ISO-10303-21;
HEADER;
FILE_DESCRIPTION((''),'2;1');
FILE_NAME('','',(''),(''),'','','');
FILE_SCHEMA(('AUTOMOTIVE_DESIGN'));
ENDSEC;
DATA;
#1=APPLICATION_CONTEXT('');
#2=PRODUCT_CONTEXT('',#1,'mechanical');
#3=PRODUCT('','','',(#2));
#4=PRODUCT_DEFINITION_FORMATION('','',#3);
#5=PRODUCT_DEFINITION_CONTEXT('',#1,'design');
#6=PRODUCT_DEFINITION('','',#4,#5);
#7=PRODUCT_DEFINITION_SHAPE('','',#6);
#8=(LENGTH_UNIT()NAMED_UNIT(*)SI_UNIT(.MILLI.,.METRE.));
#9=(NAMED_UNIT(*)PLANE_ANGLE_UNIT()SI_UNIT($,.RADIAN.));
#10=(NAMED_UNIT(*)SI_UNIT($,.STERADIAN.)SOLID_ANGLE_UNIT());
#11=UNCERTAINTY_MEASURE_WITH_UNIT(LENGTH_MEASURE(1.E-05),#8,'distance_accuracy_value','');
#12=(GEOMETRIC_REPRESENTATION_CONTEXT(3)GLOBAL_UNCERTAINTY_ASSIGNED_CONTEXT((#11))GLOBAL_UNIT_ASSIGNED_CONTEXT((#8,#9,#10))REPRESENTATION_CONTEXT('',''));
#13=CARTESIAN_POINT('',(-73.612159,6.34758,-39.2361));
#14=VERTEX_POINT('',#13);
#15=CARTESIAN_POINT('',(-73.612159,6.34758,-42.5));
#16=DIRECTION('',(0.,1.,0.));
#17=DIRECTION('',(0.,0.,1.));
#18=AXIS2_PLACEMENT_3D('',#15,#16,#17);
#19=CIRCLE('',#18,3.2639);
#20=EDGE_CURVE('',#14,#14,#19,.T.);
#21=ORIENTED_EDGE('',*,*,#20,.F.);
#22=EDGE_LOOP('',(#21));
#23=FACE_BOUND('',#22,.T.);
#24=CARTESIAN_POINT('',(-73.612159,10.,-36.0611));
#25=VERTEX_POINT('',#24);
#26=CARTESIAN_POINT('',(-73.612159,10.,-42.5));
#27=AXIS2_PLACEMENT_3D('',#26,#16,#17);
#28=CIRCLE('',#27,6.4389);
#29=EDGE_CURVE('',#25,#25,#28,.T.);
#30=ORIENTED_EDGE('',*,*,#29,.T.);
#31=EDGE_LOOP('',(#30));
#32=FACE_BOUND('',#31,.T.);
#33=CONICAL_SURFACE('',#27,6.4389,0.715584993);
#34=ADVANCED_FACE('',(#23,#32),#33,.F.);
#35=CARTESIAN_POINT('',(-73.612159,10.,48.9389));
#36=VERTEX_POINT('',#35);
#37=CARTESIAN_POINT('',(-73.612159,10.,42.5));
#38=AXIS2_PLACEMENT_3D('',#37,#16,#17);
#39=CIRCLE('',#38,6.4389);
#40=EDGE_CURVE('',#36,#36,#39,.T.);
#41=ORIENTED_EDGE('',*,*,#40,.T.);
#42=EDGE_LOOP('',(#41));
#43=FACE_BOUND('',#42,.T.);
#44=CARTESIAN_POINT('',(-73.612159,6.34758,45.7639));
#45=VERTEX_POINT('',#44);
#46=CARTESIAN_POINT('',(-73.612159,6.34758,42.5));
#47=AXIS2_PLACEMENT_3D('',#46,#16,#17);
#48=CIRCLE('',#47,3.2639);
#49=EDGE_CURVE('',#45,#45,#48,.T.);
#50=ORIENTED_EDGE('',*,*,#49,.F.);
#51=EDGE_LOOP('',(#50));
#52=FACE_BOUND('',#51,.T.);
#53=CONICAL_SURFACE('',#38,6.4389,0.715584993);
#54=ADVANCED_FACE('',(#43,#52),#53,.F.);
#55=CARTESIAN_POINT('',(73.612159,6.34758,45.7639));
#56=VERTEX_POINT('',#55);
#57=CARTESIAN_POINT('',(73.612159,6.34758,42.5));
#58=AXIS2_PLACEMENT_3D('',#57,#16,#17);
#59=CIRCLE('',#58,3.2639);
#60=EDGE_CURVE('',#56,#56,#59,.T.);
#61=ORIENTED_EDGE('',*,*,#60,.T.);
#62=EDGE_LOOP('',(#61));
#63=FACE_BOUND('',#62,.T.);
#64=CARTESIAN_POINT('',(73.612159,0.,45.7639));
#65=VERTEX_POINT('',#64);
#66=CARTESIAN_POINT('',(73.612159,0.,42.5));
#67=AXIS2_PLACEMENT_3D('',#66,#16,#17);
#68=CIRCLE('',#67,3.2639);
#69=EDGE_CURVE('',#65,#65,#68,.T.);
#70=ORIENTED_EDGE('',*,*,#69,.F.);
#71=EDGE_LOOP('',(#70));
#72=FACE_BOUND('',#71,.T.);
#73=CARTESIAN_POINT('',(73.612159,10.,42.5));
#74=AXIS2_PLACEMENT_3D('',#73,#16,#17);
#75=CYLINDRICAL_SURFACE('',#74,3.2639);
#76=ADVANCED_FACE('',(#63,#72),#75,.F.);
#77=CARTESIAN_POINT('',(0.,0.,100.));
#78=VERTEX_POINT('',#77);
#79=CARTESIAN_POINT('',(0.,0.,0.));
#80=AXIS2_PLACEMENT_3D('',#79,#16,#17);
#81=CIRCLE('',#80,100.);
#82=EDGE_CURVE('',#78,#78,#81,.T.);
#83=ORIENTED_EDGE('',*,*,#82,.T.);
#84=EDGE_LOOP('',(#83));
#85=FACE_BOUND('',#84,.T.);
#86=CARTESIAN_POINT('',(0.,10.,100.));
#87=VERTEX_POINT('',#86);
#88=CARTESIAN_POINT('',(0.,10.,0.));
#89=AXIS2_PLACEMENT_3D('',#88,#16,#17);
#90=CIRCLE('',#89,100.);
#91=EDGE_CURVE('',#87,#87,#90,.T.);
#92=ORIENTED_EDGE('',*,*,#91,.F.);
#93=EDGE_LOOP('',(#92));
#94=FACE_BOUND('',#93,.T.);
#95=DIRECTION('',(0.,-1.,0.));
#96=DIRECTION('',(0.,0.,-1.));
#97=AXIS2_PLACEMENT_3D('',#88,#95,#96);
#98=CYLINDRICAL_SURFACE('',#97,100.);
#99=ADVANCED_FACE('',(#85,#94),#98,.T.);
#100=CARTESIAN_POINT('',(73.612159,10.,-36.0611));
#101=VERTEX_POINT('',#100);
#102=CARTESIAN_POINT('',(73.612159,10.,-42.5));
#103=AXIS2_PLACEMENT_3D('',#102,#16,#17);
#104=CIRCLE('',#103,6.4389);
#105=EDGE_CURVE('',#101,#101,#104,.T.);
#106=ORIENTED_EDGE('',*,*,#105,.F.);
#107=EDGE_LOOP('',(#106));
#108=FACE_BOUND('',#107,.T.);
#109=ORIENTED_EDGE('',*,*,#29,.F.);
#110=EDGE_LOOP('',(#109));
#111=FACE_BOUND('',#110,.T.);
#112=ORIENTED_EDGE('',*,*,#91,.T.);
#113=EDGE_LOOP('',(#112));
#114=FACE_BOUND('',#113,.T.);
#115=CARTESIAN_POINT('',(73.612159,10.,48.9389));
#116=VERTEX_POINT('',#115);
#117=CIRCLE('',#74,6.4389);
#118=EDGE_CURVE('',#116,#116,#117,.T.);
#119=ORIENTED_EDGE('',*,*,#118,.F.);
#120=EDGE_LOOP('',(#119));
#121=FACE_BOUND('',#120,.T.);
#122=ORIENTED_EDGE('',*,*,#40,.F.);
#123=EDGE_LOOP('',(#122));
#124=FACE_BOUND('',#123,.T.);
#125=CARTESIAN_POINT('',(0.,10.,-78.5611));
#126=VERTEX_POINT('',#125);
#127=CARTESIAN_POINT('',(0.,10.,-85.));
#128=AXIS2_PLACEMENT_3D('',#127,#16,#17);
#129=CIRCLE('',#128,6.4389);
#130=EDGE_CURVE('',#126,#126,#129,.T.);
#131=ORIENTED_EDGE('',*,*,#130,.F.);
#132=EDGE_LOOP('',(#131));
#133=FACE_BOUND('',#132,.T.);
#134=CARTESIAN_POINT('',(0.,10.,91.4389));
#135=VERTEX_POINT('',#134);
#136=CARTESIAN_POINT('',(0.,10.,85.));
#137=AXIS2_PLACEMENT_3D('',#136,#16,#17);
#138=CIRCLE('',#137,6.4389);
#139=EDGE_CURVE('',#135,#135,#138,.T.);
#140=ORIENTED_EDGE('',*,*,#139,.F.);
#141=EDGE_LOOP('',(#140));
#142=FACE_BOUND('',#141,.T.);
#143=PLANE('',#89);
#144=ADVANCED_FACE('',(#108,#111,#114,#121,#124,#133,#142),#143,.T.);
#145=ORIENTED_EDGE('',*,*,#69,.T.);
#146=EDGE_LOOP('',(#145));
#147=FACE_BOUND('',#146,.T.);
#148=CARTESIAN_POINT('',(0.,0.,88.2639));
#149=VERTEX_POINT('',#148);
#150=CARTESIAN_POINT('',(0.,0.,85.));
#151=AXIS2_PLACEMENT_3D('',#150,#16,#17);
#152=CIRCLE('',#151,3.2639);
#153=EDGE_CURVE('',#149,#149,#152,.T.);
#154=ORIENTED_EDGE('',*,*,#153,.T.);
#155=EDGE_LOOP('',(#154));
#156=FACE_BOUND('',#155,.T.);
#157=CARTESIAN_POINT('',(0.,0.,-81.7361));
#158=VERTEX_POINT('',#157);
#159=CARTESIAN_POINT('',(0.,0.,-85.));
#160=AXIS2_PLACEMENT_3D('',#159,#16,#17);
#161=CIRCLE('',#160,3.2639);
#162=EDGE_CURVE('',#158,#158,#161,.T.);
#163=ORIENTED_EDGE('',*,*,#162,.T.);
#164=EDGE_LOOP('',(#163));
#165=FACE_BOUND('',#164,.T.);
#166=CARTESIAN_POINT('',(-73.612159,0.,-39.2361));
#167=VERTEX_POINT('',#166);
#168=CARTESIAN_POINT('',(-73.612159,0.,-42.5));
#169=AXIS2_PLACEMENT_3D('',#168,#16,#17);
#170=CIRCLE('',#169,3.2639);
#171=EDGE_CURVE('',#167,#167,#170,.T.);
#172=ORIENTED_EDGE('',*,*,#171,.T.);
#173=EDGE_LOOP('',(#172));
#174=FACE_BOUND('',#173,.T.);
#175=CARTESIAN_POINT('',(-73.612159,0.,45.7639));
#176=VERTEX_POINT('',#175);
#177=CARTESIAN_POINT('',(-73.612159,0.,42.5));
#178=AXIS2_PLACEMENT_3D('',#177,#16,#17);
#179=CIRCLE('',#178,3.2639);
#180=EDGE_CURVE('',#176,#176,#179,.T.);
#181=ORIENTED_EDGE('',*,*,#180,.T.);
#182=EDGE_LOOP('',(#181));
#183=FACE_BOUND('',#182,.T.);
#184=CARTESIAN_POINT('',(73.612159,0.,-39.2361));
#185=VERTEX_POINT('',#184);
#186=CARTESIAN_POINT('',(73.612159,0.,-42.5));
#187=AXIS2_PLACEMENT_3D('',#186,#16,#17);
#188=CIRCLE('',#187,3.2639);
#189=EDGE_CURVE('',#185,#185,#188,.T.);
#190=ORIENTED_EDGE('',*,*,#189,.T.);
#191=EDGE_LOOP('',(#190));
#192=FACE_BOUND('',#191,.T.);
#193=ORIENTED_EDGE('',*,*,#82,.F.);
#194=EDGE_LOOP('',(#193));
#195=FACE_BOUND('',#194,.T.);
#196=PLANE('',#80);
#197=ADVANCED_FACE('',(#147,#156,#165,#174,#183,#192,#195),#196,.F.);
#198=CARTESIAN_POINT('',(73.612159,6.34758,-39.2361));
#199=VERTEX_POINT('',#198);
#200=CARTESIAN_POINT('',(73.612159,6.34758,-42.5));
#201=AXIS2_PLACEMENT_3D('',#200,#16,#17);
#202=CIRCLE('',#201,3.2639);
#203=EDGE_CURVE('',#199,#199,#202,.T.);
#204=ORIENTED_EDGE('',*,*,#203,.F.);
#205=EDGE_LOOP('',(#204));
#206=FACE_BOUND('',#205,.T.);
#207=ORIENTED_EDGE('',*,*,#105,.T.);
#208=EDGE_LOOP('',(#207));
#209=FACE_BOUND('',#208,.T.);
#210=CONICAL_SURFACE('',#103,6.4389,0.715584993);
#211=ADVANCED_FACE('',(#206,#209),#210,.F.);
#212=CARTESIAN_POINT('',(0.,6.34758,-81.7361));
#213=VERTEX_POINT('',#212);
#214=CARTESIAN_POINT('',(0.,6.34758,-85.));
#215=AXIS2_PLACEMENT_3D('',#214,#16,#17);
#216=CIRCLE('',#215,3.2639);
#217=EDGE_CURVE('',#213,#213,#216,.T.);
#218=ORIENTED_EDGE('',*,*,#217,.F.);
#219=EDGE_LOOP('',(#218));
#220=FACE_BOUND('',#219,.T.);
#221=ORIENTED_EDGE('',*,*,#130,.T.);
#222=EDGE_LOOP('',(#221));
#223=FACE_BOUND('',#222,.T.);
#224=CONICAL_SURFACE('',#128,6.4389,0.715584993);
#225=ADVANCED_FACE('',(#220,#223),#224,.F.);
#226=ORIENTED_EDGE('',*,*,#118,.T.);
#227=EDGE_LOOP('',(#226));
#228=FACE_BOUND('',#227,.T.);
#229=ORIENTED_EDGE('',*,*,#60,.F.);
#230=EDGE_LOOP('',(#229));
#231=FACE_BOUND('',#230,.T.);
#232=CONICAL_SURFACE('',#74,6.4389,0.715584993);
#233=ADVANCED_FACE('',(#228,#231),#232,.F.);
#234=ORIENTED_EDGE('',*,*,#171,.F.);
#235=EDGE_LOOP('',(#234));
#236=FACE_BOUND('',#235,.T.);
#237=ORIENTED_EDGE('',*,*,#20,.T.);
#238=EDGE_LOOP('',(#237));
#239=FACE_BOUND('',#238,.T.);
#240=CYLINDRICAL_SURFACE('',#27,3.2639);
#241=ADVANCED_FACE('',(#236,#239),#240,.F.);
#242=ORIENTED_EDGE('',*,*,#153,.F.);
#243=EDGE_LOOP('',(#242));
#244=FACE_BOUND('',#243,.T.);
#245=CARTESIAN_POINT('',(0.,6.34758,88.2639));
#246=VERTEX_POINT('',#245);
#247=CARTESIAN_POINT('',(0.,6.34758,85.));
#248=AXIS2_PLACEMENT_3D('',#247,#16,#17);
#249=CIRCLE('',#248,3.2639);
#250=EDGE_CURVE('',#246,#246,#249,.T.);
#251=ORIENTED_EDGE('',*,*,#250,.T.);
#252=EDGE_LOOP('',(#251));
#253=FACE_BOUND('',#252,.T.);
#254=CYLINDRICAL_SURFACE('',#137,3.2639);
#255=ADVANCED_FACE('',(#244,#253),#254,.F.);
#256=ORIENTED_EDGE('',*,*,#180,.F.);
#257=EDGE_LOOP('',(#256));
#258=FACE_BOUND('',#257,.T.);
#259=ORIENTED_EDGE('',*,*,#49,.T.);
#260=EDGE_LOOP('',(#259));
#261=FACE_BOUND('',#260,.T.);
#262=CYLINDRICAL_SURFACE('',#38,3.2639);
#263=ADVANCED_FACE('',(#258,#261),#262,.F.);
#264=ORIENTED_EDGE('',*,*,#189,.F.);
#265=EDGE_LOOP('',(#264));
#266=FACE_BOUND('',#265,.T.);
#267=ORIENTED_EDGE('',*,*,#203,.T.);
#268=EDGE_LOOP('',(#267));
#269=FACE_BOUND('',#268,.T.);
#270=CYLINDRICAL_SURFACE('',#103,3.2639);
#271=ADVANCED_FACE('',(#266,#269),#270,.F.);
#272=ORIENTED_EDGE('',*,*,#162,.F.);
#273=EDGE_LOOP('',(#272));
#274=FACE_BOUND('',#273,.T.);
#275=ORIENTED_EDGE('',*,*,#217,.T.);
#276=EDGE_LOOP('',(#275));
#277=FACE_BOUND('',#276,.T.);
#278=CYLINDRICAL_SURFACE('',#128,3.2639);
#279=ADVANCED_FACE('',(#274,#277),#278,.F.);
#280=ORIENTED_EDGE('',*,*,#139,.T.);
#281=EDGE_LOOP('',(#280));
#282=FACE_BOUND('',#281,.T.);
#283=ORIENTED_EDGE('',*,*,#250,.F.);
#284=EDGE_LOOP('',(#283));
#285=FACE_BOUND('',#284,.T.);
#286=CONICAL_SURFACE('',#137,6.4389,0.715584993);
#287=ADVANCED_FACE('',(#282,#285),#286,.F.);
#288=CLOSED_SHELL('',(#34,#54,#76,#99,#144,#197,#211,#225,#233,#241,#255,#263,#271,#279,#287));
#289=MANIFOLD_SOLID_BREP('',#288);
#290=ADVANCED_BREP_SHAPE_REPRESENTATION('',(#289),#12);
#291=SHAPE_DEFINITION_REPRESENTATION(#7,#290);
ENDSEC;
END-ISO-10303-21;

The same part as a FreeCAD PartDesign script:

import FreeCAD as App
import Part
import Sketcher

V = App.Vector
Q = App.Units.Quantity

doc = App.newDocument("Part")
body = doc.addObject("PartDesign::Body", "Body")

# Sketch on XZ plane
sketch1 = body.newObject("Sketcher::SketchObject", "Sketch")
sketch1.AttachmentSupport = (doc.getObject("XZ_Plane"), [""])
sketch1.MapMode = "FlatFace"
sketch1.addGeometry(Part.Circle(V(0, 0, 0), V(0, 0, 1), 100), False)
sketch1.addConstraint([
    Sketcher.Constraint("Coincident", 0, 3, -1, 1),
    Sketcher.Constraint("Diameter", 0, Q("200 mm")),
])
pad1 = body.newObject("PartDesign::Pad", "Pad")
pad1.Profile = sketch1
pad1.Length = 10
pad1.Reversed = True

# Sketch on XZ plane
sketch2 = body.newObject("Sketcher::SketchObject", "Sketch001")
sketch2.AttachmentSupport = (doc.getObject("XZ_Plane"), [""])
sketch2.MapMode = "FlatFace"
sketch2.AttachmentOffset = App.Placement(V(0, 0, -10), App.Rotation())
sketch2.addGeometry([
    Part.Circle(V(-73.612159, -42.5, 0), V(0, 0, 1), 3.2639),  # 0
    Part.Circle(V(0, -85, 0), V(0, 0, 1), 3.2639),  # 1
    Part.Circle(V(73.612159, -42.5, 0), V(0, 0, 1), 3.2639),  # 2
    Part.Circle(V(73.612159, 42.5, 0), V(0, 0, 1), 3.2639),  # 3
    Part.Circle(V(0, 85, 0), V(0, 0, 1), 3.2639),  # 4
    Part.Circle(V(-73.612159, 42.5, 0), V(0, 0, 1), 3.2639),  # 5
], False)
sketch2.addConstraint([
    Sketcher.Constraint("Equal", 0, 1),
    Sketcher.Constraint("Equal", 1, 2),
    Sketcher.Constraint("Equal", 2, 3),
    Sketcher.Constraint("Equal", 3, 4),
    Sketcher.Constraint("Equal", 4, 5),
    Sketcher.Constraint("Symmetric", 0, 3, 3, 3, -1, 1),
    Sketcher.Constraint("Symmetric", 1, 3, 4, 3, -1, 1),
    Sketcher.Constraint("Symmetric", 2, 3, 5, 3, -1, 1),
    Sketcher.Constraint("Symmetric", 0, 3, 2, 3, -2),
    Sketcher.Constraint("PointOnObject", 1, 3, -2),
    Sketcher.Constraint("DistanceY", 1, 3, -1, 1, Q("85 mm")),
    Sketcher.Constraint("DistanceY", 2, 3, 3, 3, Q("85 mm")),
    Sketcher.Constraint("Diameter", 0, Q("6.5278 mm")),
    Sketcher.Constraint("DistanceX", 0, 3, -1, 1, Q("73.612159 mm")),
])
doc.recompute()
hole = body.newObject("PartDesign::Hole", "Hole")
hole.Profile = sketch2
hole.ThreadType = "None"
hole.Diameter = 6.5278
hole.DepthType = "Dimension"
hole.Depth = 10
hole.DrillPoint = "Angled"
hole.DrillPointAngle = 118
hole.HoleCutType = "Countersink"
hole.HoleCutDiameter = 12.8778
hole.HoleCutCountersinkAngle = 82
hole.Reversed = True

doc.recompute()
